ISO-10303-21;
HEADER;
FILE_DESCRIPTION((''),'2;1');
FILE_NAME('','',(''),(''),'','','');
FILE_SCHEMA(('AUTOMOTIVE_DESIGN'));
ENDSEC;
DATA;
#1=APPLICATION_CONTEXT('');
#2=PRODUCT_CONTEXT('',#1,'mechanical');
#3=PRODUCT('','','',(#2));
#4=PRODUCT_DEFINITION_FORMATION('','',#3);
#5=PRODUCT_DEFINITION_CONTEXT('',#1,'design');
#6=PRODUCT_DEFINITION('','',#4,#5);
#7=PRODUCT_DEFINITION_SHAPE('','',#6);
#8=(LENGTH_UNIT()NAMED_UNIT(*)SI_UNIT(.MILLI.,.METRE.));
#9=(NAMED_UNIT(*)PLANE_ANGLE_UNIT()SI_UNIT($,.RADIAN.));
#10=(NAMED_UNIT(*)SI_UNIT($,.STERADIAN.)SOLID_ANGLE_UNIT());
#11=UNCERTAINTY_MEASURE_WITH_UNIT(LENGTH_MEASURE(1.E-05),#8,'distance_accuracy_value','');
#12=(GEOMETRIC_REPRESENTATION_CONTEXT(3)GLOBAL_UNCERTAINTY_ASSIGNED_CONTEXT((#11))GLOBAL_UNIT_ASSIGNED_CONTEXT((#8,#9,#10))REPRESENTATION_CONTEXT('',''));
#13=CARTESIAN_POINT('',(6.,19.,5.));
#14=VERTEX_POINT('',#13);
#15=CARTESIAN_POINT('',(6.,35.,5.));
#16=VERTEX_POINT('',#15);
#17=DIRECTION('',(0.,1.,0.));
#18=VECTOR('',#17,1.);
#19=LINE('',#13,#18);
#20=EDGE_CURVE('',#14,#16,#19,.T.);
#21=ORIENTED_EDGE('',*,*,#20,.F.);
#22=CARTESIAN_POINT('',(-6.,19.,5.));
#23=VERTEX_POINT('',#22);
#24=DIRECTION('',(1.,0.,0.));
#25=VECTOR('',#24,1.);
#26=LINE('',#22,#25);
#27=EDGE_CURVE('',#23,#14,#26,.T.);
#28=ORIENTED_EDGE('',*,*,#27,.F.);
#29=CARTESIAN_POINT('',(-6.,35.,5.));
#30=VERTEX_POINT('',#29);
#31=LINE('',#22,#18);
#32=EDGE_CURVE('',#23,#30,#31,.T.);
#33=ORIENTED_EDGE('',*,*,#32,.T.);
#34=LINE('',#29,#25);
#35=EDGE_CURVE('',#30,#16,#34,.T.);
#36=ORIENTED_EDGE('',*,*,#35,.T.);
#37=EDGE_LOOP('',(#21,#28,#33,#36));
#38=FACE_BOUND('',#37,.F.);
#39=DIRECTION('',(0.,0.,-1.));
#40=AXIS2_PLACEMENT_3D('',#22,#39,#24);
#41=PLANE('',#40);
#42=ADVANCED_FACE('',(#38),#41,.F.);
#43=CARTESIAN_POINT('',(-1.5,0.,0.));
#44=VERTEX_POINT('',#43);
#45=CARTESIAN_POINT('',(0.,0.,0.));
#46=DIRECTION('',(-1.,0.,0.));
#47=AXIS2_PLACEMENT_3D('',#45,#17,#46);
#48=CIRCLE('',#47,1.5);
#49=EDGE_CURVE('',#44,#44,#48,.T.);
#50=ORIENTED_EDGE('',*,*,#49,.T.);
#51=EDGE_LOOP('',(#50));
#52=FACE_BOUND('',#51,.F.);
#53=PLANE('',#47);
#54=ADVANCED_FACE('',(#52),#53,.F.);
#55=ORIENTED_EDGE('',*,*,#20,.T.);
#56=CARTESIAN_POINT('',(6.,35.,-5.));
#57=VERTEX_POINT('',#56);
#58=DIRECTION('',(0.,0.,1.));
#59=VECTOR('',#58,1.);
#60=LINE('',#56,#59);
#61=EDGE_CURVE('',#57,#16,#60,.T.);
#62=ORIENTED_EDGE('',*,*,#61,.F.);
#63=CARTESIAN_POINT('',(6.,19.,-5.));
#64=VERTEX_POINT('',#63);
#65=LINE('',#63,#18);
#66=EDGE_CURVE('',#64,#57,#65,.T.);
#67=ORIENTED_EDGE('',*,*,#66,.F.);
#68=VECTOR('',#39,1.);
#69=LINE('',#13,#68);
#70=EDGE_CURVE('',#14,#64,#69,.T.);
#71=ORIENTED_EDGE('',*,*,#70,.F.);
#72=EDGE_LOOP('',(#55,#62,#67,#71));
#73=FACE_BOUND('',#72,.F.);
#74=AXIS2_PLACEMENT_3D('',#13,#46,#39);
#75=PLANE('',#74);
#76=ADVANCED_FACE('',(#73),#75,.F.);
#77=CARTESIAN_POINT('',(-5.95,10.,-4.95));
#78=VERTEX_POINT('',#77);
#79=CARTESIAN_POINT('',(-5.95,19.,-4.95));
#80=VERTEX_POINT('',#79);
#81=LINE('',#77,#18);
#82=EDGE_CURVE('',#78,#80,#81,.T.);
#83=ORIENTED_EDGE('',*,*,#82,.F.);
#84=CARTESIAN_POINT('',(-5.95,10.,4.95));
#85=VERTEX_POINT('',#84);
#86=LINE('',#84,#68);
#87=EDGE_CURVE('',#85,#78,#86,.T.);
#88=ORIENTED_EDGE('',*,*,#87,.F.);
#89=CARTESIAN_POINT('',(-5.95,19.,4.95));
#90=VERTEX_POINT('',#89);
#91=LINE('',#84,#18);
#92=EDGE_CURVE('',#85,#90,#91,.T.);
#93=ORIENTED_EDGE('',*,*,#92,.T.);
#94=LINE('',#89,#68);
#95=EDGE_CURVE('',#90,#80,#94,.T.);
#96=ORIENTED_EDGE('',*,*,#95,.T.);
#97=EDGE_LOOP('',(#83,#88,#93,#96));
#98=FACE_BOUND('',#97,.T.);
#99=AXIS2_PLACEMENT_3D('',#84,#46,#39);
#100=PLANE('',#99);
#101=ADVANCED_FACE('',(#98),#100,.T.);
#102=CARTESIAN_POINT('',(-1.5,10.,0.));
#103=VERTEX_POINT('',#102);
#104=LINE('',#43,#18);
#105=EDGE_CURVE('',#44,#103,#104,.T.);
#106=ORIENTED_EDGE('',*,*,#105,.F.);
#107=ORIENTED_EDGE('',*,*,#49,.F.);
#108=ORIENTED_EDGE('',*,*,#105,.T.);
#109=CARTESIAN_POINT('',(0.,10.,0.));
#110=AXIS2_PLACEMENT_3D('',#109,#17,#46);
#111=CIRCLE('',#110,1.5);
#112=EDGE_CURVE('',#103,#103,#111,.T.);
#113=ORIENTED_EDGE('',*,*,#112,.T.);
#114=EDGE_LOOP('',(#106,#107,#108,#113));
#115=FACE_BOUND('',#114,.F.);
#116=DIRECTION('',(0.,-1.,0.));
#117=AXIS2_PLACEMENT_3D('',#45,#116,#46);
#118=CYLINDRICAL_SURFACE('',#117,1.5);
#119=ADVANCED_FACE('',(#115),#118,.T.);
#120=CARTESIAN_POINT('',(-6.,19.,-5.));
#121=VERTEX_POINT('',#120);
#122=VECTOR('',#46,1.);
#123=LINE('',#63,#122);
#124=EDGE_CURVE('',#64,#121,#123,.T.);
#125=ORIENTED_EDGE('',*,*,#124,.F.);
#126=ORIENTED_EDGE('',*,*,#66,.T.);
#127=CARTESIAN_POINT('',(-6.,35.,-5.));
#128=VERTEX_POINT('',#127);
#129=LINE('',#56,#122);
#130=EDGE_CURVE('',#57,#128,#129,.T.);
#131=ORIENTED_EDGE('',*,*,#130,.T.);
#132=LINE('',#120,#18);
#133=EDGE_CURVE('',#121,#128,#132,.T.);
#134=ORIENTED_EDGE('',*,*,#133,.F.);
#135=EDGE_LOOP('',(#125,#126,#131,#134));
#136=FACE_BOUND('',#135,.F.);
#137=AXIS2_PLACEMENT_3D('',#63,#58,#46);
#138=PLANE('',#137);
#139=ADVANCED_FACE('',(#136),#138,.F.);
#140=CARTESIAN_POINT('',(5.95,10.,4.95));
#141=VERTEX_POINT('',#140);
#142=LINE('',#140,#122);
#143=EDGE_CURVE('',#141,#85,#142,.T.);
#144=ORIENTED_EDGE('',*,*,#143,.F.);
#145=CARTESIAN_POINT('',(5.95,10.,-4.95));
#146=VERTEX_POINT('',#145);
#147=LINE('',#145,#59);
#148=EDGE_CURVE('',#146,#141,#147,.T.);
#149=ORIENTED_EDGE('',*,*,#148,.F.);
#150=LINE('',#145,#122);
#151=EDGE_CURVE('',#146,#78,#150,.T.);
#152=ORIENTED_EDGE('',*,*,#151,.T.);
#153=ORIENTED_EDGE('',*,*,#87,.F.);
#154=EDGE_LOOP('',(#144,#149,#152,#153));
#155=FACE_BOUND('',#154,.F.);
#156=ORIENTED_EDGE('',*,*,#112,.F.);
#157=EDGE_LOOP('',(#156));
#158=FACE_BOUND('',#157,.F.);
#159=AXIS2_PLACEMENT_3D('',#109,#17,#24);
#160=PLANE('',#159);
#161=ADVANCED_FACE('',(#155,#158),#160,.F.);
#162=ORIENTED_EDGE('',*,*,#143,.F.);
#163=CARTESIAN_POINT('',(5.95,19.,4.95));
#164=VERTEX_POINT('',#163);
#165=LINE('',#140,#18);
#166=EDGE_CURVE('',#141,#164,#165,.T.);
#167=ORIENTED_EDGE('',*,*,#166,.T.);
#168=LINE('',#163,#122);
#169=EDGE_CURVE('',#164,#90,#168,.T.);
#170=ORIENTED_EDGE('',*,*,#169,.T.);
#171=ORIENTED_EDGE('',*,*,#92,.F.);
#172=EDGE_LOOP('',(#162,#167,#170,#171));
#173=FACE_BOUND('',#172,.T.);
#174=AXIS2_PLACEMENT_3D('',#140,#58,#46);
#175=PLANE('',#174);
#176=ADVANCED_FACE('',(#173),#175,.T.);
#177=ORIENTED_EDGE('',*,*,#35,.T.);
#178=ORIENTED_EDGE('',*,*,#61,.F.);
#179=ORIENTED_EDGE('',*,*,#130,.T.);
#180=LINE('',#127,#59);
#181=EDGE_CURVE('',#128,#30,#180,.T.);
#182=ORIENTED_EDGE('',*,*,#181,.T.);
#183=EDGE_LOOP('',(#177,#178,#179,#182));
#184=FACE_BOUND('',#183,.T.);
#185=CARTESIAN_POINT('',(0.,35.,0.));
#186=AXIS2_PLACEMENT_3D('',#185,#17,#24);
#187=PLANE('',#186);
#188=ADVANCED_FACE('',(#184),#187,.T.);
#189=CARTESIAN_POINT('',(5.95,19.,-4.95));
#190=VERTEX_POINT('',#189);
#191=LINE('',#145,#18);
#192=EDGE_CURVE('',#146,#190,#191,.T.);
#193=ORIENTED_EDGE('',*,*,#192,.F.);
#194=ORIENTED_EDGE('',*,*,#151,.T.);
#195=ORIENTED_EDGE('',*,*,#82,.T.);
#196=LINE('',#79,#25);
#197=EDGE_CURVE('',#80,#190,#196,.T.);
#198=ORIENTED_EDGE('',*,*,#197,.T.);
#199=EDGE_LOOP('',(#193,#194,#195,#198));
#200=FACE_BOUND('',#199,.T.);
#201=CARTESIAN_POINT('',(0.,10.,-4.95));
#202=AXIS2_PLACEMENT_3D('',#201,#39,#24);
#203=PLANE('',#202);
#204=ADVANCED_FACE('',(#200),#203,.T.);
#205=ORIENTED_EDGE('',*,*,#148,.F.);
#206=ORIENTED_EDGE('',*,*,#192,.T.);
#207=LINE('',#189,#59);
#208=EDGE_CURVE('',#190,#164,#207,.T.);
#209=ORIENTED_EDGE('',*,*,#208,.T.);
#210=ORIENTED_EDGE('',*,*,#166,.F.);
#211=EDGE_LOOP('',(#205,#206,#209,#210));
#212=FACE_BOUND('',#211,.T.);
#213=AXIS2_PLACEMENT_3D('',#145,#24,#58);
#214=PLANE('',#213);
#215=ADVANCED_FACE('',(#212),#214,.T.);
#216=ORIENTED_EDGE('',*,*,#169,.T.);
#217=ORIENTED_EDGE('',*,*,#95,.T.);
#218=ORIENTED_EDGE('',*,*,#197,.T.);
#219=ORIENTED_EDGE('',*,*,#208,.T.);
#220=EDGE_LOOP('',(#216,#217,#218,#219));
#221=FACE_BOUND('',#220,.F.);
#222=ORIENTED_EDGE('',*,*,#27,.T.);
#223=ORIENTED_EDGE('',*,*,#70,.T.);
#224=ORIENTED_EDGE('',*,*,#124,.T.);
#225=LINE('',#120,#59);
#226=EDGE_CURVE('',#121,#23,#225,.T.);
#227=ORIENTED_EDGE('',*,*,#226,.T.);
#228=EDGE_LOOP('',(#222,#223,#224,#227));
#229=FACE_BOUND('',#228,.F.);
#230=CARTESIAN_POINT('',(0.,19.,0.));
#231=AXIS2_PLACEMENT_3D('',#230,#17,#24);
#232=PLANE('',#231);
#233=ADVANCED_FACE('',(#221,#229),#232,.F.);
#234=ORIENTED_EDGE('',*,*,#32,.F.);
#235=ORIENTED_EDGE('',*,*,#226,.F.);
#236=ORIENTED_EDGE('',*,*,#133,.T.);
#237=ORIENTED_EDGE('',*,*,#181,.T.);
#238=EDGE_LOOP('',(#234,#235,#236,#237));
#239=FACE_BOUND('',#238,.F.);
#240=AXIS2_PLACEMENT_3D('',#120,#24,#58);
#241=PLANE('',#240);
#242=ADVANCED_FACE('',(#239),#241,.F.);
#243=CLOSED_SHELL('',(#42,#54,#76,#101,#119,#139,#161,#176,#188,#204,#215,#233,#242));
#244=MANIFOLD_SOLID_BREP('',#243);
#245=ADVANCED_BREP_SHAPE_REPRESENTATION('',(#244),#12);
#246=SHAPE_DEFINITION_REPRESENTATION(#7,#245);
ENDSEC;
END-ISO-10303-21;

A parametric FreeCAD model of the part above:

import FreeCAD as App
import Part
import Sketcher

V = App.Vector


def add_polygon(sketch, points):
    """Adds a closed chain of lines whose ends are joined by coincident constraints."""
    first, n = sketch.GeometryCount, len(points)
    for a, b in zip(points, points[1:] + points[:1]):
        sketch.addGeometry(Part.LineSegment(App.Vector(*a, 0), App.Vector(*b, 0)), False)
    for i in range(n):
        sketch.addConstraint(Sketcher.Constraint("Coincident", first + i, 2, first + (i + 1) % n, 1))

doc = App.newDocument("Part")
body = doc.addObject("PartDesign::Body", "Body")

sketch1 = body.newObject("Sketcher::SketchObject", "Sketch")
sketch1.AttachmentSupport = (doc.getObject("XZ_Plane"), [""])
sketch1.MapMode = "FlatFace"
sketch1.addGeometry(Part.Circle(V(0, 0, 0), V(0, 0, 1), 1.5), False)
sketch1.addConstraint([
    Sketcher.Constraint("Coincident", 0, 3, -1, 1),
    Sketcher.Constraint("Diameter", 0, 3.0),
])
pad1 = body.newObject("PartDesign::Pad", "Pad")
pad1.Profile = sketch1
pad1.Length = 10
pad1.Reversed = True

sketch2 = body.newObject("Sketcher::SketchObject", "Sketch001")
sketch2.AttachmentSupport = (doc.getObject("XZ_Plane"), [""])
sketch2.MapMode = "FlatFace"
sketch2.AttachmentOffset = App.Placement(V(0, 0, -10), App.Rotation())
add_polygon(sketch2, [(5.95, -4.95), (-5.95, -4.95), (-5.95, 4.95), (5.95, 4.95)])
sketch2.addConstraint([
    Sketcher.Constraint("Horizontal", 0),
    Sketcher.Constraint("Vertical", 1),
    Sketcher.Constraint("Horizontal", 2),
    Sketcher.Constraint("Vertical", 3),
    Sketcher.Constraint("Symmetric", 0, 2, 2, 2, -1, 1),
    Sketcher.Constraint("DistanceX", 0, 2, 0, 1, 11.9),
    Sketcher.Constraint("DistanceY", 1, 1, 1, 2, 9.9),
])
pad2 = body.newObject("PartDesign::Pad", "Pad001")
pad2.Profile = sketch2
pad2.Length = 9
pad2.Reversed = True

sketch3 = body.newObject("Sketcher::SketchObject", "Sketch002")
sketch3.AttachmentSupport = (doc.getObject("XZ_Plane"), [""])
sketch3.MapMode = "FlatFace"
sketch3.AttachmentOffset = App.Placement(V(0, 0, -19), App.Rotation())
add_polygon(sketch3, [(6, 5), (6, -5), (-6, -5), (-6, 5)])
sketch3.addConstraint([
    Sketcher.Constraint("Vertical", 0),
    Sketcher.Constraint("Horizontal", 1),
    Sketcher.Constraint("Vertical", 2),
    Sketcher.Constraint("Horizontal", 3),
    Sketcher.Constraint("Symmetric", 0, 2, 2, 2, -1, 1),
    Sketcher.Constraint("DistanceX", 1, 2, 1, 1, 12.0),
    Sketcher.Constraint("DistanceY", 0, 2, 0, 1, 10.0),
])
pad3 = body.newObject("PartDesign::Pad", "Pad002")
pad3.Profile = sketch3
pad3.Length = 16
pad3.Reversed = True

doc.recompute()
